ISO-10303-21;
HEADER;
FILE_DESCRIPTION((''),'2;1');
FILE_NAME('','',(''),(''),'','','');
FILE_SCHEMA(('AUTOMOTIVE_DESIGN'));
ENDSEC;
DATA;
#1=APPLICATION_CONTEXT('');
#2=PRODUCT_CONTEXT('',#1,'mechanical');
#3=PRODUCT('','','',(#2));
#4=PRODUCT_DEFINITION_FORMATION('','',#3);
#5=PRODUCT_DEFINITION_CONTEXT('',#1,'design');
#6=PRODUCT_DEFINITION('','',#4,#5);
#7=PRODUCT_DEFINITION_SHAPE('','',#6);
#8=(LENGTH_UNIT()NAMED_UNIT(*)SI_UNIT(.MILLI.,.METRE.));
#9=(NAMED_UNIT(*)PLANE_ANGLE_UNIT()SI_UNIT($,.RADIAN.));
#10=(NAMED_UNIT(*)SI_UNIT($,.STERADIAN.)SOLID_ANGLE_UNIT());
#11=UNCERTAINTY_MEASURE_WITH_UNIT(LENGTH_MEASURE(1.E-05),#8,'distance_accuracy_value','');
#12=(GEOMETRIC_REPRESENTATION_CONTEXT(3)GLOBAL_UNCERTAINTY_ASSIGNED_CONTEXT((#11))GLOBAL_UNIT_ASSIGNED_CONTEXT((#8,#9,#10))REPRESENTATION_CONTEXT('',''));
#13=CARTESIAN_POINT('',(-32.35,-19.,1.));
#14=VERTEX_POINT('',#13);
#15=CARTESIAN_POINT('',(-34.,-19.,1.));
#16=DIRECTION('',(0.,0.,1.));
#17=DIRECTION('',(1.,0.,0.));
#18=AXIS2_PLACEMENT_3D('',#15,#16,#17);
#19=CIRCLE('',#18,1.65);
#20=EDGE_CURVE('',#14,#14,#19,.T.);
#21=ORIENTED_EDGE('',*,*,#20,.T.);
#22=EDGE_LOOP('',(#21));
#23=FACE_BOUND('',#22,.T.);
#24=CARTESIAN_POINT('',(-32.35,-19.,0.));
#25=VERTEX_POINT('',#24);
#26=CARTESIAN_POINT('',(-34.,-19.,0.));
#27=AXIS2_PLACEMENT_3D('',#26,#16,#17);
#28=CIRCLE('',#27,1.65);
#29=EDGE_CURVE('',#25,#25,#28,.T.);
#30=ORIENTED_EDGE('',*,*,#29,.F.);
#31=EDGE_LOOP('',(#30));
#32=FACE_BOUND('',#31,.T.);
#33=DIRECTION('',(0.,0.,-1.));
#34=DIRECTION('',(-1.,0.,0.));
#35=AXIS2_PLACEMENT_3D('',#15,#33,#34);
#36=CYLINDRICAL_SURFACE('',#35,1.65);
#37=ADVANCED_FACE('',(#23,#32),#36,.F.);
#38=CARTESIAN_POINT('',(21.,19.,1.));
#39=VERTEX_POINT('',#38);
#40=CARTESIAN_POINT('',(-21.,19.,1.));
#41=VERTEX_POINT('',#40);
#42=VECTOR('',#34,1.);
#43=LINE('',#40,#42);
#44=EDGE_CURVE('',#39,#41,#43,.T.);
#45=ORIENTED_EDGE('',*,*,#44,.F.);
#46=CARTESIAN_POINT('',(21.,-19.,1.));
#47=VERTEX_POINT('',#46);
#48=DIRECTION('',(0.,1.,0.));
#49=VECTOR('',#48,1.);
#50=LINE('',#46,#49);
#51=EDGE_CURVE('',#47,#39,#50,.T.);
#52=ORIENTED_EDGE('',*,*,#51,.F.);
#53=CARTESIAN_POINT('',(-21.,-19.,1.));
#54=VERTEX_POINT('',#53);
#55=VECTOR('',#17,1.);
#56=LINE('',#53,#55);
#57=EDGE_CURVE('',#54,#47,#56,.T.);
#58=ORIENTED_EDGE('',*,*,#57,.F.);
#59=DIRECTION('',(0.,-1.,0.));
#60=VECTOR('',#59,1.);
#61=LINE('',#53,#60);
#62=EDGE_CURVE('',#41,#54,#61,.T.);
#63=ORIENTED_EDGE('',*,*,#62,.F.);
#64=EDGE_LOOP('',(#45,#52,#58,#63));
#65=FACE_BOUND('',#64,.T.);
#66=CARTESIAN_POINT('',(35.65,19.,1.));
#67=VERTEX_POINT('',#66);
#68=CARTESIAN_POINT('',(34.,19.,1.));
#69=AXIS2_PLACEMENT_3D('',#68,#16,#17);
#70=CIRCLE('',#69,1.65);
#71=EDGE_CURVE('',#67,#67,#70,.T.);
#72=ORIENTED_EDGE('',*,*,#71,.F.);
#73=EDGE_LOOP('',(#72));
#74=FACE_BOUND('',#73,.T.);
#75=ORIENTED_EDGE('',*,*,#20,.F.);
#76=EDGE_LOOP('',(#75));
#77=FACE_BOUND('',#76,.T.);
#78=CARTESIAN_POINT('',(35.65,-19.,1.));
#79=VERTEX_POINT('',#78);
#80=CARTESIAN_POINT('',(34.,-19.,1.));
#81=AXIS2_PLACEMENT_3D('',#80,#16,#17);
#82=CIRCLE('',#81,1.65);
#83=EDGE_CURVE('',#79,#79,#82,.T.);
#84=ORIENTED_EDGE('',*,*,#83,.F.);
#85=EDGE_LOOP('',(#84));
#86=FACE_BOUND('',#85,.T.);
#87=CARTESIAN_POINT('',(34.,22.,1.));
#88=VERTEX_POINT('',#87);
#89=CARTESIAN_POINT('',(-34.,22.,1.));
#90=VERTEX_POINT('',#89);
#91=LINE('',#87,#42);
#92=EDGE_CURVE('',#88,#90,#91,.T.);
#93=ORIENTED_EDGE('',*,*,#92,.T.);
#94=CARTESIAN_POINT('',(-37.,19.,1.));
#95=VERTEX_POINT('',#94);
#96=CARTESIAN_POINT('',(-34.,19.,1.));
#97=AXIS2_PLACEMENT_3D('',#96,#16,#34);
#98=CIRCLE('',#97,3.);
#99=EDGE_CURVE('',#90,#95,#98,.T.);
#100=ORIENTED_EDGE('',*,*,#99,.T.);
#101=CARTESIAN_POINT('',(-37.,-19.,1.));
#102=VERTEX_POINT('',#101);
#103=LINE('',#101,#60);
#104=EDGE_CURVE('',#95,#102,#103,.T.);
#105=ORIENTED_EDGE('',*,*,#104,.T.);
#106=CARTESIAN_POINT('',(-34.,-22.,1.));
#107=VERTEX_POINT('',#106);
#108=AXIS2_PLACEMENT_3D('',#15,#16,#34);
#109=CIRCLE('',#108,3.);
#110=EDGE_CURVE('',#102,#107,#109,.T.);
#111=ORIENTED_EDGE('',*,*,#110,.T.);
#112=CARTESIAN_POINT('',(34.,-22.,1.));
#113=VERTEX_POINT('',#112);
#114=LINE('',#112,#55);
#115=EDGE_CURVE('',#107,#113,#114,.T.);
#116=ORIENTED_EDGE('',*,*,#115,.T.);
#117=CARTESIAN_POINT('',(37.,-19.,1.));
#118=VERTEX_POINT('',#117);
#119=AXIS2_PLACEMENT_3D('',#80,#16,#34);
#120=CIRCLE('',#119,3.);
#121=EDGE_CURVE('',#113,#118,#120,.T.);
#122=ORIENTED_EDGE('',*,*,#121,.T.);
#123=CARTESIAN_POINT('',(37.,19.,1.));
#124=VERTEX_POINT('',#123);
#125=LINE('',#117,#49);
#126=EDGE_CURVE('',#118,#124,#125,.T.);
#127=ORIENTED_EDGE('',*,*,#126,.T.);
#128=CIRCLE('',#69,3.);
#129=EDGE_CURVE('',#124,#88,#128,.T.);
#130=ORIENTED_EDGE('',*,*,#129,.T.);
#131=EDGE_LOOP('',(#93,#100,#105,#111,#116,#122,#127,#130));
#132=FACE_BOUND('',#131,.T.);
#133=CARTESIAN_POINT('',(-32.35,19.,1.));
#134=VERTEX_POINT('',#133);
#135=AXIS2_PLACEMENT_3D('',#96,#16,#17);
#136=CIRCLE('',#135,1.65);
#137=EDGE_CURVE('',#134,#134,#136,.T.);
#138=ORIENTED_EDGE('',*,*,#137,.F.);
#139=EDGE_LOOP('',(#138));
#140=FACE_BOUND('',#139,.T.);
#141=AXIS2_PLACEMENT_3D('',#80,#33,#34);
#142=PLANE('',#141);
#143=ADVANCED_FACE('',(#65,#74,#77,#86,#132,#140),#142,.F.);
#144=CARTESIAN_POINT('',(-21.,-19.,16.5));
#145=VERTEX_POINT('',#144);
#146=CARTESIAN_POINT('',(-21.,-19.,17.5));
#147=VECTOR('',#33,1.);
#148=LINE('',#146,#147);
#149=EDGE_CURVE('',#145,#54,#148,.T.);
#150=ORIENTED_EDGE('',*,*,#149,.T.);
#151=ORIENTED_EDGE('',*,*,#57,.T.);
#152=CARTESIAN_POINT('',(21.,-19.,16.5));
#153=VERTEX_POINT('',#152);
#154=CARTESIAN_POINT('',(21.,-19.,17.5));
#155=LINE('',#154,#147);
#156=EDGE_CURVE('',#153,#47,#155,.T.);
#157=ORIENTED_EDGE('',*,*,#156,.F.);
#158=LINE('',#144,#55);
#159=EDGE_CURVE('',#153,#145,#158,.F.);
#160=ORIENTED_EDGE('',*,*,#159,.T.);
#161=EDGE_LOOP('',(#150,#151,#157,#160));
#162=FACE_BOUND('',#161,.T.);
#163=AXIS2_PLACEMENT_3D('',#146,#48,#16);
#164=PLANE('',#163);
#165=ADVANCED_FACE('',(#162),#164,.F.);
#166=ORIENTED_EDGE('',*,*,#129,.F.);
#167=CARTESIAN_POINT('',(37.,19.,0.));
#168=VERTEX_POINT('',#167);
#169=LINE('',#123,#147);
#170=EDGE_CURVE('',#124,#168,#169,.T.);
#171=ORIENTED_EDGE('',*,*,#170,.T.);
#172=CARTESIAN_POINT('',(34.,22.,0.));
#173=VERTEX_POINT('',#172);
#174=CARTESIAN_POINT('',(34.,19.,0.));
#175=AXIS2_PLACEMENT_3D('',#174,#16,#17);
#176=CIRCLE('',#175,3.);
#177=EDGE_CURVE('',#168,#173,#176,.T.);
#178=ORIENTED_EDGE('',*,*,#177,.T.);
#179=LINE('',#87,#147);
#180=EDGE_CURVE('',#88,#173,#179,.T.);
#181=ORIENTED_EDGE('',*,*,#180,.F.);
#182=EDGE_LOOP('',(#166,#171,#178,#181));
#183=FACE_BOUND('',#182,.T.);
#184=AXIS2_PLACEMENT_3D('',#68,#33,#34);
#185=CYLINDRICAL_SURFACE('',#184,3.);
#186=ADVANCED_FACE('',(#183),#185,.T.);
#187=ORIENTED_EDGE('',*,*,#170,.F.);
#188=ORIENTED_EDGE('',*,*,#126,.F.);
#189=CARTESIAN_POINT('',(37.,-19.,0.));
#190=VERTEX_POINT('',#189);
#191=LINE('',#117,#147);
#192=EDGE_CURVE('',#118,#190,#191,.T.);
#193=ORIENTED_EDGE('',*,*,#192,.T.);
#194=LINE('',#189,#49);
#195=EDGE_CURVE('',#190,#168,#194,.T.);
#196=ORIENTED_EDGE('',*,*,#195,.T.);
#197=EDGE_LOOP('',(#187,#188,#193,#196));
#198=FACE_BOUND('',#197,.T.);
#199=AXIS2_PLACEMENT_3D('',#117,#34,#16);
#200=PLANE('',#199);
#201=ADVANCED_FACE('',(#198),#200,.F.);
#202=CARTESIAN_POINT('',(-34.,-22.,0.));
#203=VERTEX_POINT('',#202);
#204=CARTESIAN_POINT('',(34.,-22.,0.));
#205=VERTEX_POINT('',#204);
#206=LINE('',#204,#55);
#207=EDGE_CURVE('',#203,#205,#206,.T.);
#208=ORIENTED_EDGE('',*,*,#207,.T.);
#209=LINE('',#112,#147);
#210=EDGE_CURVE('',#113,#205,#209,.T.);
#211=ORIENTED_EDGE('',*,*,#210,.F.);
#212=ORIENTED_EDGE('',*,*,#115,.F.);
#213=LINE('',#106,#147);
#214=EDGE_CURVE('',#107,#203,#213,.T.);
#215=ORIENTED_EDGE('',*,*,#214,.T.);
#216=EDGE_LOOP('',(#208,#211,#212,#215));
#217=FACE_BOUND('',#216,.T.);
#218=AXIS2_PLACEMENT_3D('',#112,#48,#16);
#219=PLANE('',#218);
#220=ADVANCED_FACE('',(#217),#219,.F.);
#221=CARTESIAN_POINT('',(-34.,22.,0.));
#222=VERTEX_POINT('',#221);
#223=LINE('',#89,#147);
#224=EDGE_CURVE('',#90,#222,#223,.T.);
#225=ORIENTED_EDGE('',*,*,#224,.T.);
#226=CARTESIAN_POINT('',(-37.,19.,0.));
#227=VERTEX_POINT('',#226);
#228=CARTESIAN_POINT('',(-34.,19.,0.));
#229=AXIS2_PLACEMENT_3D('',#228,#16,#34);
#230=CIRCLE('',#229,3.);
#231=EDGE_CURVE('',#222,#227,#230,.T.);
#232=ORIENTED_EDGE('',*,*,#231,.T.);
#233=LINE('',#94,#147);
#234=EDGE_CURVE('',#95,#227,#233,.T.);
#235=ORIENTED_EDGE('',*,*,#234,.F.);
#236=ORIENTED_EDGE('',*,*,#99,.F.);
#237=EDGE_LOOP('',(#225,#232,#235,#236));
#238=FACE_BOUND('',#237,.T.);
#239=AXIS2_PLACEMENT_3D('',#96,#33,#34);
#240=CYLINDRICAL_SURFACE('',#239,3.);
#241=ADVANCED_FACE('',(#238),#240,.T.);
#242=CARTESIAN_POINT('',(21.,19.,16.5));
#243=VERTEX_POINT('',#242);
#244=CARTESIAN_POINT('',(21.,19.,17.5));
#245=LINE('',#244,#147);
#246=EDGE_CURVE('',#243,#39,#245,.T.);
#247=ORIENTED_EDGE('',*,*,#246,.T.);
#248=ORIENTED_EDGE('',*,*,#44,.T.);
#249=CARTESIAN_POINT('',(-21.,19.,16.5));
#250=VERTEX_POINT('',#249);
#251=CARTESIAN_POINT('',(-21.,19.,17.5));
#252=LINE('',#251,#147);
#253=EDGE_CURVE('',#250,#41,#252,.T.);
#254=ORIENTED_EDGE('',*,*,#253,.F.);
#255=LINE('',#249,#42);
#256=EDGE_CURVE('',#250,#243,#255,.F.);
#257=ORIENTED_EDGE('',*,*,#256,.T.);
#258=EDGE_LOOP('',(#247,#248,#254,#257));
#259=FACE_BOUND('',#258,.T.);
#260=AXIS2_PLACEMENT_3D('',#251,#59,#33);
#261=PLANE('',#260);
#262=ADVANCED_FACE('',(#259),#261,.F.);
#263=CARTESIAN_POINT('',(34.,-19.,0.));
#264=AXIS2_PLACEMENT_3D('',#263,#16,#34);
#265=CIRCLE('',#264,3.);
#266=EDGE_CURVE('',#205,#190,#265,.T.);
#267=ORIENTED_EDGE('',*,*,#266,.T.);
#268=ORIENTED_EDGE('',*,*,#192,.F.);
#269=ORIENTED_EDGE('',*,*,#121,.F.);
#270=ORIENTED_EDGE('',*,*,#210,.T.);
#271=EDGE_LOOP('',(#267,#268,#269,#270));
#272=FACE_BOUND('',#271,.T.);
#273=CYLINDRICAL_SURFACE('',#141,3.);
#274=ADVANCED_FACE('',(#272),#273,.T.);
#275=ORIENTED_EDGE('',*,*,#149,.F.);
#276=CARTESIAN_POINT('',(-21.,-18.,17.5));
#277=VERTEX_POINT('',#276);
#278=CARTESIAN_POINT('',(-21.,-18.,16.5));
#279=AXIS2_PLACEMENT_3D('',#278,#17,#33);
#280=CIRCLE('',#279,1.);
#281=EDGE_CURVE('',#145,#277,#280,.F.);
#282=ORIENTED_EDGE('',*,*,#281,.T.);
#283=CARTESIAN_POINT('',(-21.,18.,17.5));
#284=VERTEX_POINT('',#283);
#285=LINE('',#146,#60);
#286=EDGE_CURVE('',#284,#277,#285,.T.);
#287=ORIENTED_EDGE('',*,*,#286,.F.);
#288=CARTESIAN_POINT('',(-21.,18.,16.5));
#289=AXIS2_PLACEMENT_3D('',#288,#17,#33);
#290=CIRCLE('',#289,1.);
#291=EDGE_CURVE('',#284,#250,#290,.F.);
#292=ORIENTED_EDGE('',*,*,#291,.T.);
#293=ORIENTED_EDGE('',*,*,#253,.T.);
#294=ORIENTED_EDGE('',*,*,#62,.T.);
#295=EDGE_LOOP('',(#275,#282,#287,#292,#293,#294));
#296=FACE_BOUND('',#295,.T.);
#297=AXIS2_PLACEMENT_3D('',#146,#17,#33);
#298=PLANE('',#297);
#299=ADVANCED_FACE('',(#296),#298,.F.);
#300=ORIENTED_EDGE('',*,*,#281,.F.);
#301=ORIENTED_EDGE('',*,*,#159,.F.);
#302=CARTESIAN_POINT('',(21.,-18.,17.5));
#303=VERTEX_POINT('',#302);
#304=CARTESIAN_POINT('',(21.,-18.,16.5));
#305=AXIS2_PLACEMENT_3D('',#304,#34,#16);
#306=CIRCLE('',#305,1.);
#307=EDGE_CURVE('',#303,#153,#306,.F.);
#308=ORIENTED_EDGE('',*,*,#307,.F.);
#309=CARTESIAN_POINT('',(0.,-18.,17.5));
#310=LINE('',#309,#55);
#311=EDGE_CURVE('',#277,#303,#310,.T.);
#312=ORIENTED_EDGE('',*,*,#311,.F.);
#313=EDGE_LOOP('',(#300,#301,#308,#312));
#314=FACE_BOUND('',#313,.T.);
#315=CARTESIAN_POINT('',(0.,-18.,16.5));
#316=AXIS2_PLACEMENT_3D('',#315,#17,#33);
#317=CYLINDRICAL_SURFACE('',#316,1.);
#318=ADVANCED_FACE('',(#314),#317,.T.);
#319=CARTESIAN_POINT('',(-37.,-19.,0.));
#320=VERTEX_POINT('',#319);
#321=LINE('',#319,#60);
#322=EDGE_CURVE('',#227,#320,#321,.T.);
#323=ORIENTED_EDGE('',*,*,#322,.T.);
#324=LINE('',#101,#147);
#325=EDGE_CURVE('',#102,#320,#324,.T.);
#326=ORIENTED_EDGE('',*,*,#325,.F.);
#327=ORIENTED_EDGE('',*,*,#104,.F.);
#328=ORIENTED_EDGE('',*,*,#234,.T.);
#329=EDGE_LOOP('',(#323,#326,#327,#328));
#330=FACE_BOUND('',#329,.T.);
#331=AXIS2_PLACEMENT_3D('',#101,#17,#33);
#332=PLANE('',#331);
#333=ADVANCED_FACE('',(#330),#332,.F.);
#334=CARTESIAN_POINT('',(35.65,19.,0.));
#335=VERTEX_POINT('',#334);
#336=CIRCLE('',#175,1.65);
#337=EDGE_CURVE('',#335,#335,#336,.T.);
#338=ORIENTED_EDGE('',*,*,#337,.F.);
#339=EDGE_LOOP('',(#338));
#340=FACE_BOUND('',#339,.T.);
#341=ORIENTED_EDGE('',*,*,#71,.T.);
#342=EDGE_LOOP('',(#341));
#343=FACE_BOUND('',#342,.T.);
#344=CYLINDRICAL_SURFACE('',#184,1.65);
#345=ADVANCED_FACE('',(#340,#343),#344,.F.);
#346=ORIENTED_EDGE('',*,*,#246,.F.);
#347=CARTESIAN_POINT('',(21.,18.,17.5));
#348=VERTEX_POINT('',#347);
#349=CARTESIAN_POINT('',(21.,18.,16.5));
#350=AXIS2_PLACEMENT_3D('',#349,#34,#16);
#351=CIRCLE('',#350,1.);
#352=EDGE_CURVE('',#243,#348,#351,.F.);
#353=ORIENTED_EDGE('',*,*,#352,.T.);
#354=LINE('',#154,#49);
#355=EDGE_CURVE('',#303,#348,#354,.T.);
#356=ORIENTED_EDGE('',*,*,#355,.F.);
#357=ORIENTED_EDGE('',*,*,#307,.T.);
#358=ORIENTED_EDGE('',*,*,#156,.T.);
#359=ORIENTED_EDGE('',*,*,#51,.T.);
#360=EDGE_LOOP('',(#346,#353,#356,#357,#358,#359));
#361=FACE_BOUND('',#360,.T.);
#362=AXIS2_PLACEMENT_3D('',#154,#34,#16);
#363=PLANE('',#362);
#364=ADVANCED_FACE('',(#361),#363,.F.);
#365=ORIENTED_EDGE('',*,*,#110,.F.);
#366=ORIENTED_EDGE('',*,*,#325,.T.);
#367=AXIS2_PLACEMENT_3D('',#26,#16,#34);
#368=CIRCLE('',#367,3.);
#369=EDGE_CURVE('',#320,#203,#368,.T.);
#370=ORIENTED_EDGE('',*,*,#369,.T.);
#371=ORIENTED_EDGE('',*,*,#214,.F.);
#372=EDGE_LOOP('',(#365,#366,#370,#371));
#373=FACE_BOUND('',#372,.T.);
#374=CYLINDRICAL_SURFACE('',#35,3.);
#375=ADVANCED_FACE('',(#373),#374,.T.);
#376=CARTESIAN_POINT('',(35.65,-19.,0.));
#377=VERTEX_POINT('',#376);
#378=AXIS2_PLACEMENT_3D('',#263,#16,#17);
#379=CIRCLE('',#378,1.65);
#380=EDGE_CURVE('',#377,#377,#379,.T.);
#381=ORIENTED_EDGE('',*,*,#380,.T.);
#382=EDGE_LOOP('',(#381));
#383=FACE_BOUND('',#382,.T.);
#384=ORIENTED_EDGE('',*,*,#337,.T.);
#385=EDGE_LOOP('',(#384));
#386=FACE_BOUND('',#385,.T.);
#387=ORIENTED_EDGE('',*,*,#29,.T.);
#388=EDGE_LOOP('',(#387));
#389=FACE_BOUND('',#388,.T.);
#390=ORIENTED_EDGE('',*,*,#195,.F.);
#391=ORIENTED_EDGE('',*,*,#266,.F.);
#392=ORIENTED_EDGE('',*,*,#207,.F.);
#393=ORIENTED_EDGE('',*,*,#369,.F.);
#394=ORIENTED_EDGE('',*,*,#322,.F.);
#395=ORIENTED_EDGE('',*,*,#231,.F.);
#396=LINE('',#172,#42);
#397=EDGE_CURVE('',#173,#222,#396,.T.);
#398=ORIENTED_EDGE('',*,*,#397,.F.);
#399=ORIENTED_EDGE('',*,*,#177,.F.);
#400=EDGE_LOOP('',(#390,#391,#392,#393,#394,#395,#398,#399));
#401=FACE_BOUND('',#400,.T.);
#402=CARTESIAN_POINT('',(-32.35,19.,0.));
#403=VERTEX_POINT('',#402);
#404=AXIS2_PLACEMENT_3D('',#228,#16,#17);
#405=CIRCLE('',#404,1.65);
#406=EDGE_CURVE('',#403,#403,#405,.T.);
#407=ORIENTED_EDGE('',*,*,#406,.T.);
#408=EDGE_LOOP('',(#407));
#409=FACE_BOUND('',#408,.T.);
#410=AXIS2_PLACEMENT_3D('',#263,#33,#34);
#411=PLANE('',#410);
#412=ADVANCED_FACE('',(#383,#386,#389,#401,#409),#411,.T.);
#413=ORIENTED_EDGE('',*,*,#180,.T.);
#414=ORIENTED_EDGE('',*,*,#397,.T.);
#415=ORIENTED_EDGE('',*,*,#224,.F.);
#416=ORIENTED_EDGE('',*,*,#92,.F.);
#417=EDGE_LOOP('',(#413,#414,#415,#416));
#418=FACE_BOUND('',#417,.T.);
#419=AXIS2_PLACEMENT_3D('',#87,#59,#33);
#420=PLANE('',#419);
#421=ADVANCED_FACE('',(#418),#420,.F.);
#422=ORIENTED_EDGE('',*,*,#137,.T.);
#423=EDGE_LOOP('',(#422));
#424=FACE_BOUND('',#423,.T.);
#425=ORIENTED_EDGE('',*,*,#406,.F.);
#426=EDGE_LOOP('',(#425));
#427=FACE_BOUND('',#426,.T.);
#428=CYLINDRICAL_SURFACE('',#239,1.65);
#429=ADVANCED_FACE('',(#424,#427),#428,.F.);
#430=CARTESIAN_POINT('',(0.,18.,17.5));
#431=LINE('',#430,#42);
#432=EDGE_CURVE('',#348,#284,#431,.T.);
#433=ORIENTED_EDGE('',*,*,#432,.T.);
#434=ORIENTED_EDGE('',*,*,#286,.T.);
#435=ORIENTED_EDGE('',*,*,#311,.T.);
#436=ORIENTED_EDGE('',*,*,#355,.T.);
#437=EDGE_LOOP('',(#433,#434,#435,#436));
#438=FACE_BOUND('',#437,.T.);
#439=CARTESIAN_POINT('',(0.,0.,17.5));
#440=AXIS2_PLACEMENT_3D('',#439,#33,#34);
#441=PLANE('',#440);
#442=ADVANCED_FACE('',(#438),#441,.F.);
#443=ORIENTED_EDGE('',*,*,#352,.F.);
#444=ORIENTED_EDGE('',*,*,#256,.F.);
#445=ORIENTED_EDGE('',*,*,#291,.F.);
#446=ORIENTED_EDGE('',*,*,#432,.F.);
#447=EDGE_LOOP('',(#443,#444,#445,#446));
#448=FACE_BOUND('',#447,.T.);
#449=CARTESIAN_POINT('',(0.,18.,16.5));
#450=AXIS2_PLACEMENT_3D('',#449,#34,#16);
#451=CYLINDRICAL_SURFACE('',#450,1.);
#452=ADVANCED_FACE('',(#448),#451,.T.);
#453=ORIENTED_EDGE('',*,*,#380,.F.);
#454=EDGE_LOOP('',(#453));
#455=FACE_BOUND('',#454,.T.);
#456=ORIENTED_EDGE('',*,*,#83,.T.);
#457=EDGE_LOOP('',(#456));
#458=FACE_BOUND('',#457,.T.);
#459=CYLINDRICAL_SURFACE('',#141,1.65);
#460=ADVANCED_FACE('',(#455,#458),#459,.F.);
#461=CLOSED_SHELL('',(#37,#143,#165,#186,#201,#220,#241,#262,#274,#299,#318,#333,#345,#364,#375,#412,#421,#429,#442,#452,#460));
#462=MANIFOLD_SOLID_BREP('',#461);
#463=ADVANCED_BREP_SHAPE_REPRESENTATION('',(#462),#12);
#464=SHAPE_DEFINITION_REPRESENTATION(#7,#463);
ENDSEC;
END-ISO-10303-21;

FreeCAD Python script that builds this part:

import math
import FreeCAD as App
import Part
import Sketcher

V = App.Vector
Q = App.Units.Quantity


def edges_at(feature, points):
    """Names of the edges that pass closest to the given points."""
    edges = feature.Shape.Edges
    near = lambda p: min(range(len(edges)), key=lambda i: edges[i].distToShape(Part.Vertex(*p))[0])
    return sorted({f"Edge{near(p) + 1}" for p in points})

doc = App.newDocument("Part")
body = doc.addObject("PartDesign::Body", "Body")

# Sketch on XY plane
sketch1 = body.newObject("Sketcher::SketchObject", "Sketch")
sketch1.AttachmentSupport = (doc.getObject("XY_Plane"), [""])
sketch1.MapMode = "FlatFace"
sketch1.addGeometry(Part.LineSegment(V(37, -19, 0), V(37, 19, 0)), False)
sketch1.addGeometry(Part.ArcOfCircle(Part.Circle(V(34, 19, 0), V(0, 0, 1), 3), math.radians(0), math.radians(90)), False)
sketch1.addGeometry(Part.LineSegment(V(34, 22, 0), V(-34, 22, 0)), False)
sketch1.addGeometry(Part.ArcOfCircle(Part.Circle(V(-34, 19, 0), V(0, 0, 1), 3), math.radians(90), math.radians(180)), False)
sketch1.addGeometry(Part.LineSegment(V(-37, 19, 0), V(-37, -19, 0)), False)
sketch1.addGeometry(Part.ArcOfCircle(Part.Circle(V(-34, -19, 0), V(0, 0, 1), 3), math.radians(180), math.radians(270)), False)
sketch1.addGeometry(Part.LineSegment(V(-34, -22, 0), V(34, -22, 0)), False)
sketch1.addGeometry(Part.ArcOfCircle(Part.Circle(V(34, -19, 0), V(0, 0, 1), 3), math.radians(-90), math.radians(0)), False)
sketch1.addGeometry(Part.Circle(V(34, -19, 0), V(0, 0, 1), 1.6), False)
sketch1.addGeometry(Part.Circle(V(34, 19, 0), V(0, 0, 1), 1.6), False)
sketch1.addGeometry(Part.Circle(V(-34, -19, 0), V(0, 0, 1), 1.6), False)
sketch1.addGeometry(Part.Circle(V(-34, 19, 0), V(0, 0, 1), 1.6), False)
sketch1.addConstraint(Sketcher.Constraint("Tangent", 0, 2, 1, 1))
sketch1.addConstraint(Sketcher.Constraint("Tangent", 1, 2, 2, 1))
sketch1.addConstraint(Sketcher.Constraint("Tangent", 2, 2, 3, 1))
sketch1.addConstraint(Sketcher.Constraint("Tangent", 3, 2, 4, 1))
sketch1.addConstraint(Sketcher.Constraint("Tangent", 4, 2, 5, 1))
sketch1.addConstraint(Sketcher.Constraint("Tangent", 5, 2, 6, 1))
sketch1.addConstraint(Sketcher.Constraint("Tangent", 6, 2, 7, 1))
sketch1.addConstraint(Sketcher.Constraint("Tangent", 7, 2, 0, 1))
sketch1.addConstraint(Sketcher.Constraint("Vertical", 0))
sketch1.addConstraint(Sketcher.Constraint("Horizontal", 2))
sketch1.addConstraint(Sketcher.Constraint("Vertical", 4))
sketch1.addConstraint(Sketcher.Constraint("Horizontal", 6))
sketch1.addConstraint(Sketcher.Constraint("Coincident", 8, 3, 7, 3))
sketch1.addConstraint(Sketcher.Constraint("Coincident", 9, 3, 1, 3))
sketch1.addConstraint(Sketcher.Constraint("Coincident", 10, 3, 5, 3))
sketch1.addConstraint(Sketcher.Constraint("Coincident", 11, 3, 3, 3))
sketch1.addConstraint(Sketcher.Constraint("Equal", 1, 3))
sketch1.addConstraint(Sketcher.Constraint("Equal", 3, 5))
sketch1.addConstraint(Sketcher.Constraint("Equal", 5, 7))
sketch1.addConstraint(Sketcher.Constraint("Equal", 8, 9))
sketch1.addConstraint(Sketcher.Constraint("Equal", 9, 10))
sketch1.addConstraint(Sketcher.Constraint("Equal", 10, 11))
sketch1.addConstraint(Sketcher.Constraint("Symmetric", 1, 3, 5, 3, -1, 1))
sketch1.addConstraint(Sketcher.Constraint("Radius", 1, Q("3 mm")))
sketch1.addConstraint(Sketcher.Constraint("Diameter", 8, Q("3.3 mm")))
sketch1.addConstraint(Sketcher.Constraint("DistanceX", 2, 2, 2, 1, Q("68 mm")))
sketch1.addConstraint(Sketcher.Constraint("DistanceY", 0, 1, 0, 2, Q("38 mm")))
pad1 = body.newObject("PartDesign::Pad", "Pad")
pad1.Profile = sketch1
pad1.Length = 1

# Sketch on XY plane
sketch2 = body.newObject("Sketcher::SketchObject", "Sketch001")
sketch2.AttachmentSupport = (doc.getObject("XY_Plane"), [""])
sketch2.MapMode = "FlatFace"
sketch2.AttachmentOffset = App.Placement(V(0, 0, 1), App.Rotation())
sketch2.addGeometry(Part.LineSegment(V(-21, 19, 0), V(-21, -19, 0)), False)
sketch2.addGeometry(Part.LineSegment(V(-21, -19, 0), V(21, -19, 0)), False)
sketch2.addGeometry(Part.LineSegment(V(21, -19, 0), V(21, 19, 0)), False)
sketch2.addGeometry(Part.LineSegment(V(21, 19, 0), V(-21, 19, 0)), False)
sketch2.addConstraint(Sketcher.Constraint("Coincident", 0, 2, 1, 1))
sketch2.addConstraint(Sketcher.Constraint("Coincident", 1, 2, 2, 1))
sketch2.addConstraint(Sketcher.Constraint("Coincident", 2, 2, 3, 1))
sketch2.addConstraint(Sketcher.Constraint("Coincident", 3, 2, 0, 1))
sketch2.addConstraint(Sketcher.Constraint("Vertical", 0))
sketch2.addConstraint(Sketcher.Constraint("Horizontal", 1))
sketch2.addConstraint(Sketcher.Constraint("Vertical", 2))
sketch2.addConstraint(Sketcher.Constraint("Horizontal", 3))
sketch2.addConstraint(Sketcher.Constraint("Symmetric", 0, 2, 2, 2, -1, 1))
sketch2.addConstraint(Sketcher.Constraint("DistanceX", 1, 1, 1, 2, Q("42 mm")))
sketch2.addConstraint(Sketcher.Constraint("DistanceY", 0, 2, 0, 1, Q("38 mm")))
pad2 = body.newObject("PartDesign::Pad", "Pad001")
pad2.Profile = sketch2
pad2.Length = 16.5
doc.recompute()

fillet = body.newObject("PartDesign::Fillet", "Fillet")
fillet.Base = (pad2, edges_at(pad2, [(0, 19, 17.5), (0, -19, 17.5)]))
fillet.Radius = 1

doc.recompute()
